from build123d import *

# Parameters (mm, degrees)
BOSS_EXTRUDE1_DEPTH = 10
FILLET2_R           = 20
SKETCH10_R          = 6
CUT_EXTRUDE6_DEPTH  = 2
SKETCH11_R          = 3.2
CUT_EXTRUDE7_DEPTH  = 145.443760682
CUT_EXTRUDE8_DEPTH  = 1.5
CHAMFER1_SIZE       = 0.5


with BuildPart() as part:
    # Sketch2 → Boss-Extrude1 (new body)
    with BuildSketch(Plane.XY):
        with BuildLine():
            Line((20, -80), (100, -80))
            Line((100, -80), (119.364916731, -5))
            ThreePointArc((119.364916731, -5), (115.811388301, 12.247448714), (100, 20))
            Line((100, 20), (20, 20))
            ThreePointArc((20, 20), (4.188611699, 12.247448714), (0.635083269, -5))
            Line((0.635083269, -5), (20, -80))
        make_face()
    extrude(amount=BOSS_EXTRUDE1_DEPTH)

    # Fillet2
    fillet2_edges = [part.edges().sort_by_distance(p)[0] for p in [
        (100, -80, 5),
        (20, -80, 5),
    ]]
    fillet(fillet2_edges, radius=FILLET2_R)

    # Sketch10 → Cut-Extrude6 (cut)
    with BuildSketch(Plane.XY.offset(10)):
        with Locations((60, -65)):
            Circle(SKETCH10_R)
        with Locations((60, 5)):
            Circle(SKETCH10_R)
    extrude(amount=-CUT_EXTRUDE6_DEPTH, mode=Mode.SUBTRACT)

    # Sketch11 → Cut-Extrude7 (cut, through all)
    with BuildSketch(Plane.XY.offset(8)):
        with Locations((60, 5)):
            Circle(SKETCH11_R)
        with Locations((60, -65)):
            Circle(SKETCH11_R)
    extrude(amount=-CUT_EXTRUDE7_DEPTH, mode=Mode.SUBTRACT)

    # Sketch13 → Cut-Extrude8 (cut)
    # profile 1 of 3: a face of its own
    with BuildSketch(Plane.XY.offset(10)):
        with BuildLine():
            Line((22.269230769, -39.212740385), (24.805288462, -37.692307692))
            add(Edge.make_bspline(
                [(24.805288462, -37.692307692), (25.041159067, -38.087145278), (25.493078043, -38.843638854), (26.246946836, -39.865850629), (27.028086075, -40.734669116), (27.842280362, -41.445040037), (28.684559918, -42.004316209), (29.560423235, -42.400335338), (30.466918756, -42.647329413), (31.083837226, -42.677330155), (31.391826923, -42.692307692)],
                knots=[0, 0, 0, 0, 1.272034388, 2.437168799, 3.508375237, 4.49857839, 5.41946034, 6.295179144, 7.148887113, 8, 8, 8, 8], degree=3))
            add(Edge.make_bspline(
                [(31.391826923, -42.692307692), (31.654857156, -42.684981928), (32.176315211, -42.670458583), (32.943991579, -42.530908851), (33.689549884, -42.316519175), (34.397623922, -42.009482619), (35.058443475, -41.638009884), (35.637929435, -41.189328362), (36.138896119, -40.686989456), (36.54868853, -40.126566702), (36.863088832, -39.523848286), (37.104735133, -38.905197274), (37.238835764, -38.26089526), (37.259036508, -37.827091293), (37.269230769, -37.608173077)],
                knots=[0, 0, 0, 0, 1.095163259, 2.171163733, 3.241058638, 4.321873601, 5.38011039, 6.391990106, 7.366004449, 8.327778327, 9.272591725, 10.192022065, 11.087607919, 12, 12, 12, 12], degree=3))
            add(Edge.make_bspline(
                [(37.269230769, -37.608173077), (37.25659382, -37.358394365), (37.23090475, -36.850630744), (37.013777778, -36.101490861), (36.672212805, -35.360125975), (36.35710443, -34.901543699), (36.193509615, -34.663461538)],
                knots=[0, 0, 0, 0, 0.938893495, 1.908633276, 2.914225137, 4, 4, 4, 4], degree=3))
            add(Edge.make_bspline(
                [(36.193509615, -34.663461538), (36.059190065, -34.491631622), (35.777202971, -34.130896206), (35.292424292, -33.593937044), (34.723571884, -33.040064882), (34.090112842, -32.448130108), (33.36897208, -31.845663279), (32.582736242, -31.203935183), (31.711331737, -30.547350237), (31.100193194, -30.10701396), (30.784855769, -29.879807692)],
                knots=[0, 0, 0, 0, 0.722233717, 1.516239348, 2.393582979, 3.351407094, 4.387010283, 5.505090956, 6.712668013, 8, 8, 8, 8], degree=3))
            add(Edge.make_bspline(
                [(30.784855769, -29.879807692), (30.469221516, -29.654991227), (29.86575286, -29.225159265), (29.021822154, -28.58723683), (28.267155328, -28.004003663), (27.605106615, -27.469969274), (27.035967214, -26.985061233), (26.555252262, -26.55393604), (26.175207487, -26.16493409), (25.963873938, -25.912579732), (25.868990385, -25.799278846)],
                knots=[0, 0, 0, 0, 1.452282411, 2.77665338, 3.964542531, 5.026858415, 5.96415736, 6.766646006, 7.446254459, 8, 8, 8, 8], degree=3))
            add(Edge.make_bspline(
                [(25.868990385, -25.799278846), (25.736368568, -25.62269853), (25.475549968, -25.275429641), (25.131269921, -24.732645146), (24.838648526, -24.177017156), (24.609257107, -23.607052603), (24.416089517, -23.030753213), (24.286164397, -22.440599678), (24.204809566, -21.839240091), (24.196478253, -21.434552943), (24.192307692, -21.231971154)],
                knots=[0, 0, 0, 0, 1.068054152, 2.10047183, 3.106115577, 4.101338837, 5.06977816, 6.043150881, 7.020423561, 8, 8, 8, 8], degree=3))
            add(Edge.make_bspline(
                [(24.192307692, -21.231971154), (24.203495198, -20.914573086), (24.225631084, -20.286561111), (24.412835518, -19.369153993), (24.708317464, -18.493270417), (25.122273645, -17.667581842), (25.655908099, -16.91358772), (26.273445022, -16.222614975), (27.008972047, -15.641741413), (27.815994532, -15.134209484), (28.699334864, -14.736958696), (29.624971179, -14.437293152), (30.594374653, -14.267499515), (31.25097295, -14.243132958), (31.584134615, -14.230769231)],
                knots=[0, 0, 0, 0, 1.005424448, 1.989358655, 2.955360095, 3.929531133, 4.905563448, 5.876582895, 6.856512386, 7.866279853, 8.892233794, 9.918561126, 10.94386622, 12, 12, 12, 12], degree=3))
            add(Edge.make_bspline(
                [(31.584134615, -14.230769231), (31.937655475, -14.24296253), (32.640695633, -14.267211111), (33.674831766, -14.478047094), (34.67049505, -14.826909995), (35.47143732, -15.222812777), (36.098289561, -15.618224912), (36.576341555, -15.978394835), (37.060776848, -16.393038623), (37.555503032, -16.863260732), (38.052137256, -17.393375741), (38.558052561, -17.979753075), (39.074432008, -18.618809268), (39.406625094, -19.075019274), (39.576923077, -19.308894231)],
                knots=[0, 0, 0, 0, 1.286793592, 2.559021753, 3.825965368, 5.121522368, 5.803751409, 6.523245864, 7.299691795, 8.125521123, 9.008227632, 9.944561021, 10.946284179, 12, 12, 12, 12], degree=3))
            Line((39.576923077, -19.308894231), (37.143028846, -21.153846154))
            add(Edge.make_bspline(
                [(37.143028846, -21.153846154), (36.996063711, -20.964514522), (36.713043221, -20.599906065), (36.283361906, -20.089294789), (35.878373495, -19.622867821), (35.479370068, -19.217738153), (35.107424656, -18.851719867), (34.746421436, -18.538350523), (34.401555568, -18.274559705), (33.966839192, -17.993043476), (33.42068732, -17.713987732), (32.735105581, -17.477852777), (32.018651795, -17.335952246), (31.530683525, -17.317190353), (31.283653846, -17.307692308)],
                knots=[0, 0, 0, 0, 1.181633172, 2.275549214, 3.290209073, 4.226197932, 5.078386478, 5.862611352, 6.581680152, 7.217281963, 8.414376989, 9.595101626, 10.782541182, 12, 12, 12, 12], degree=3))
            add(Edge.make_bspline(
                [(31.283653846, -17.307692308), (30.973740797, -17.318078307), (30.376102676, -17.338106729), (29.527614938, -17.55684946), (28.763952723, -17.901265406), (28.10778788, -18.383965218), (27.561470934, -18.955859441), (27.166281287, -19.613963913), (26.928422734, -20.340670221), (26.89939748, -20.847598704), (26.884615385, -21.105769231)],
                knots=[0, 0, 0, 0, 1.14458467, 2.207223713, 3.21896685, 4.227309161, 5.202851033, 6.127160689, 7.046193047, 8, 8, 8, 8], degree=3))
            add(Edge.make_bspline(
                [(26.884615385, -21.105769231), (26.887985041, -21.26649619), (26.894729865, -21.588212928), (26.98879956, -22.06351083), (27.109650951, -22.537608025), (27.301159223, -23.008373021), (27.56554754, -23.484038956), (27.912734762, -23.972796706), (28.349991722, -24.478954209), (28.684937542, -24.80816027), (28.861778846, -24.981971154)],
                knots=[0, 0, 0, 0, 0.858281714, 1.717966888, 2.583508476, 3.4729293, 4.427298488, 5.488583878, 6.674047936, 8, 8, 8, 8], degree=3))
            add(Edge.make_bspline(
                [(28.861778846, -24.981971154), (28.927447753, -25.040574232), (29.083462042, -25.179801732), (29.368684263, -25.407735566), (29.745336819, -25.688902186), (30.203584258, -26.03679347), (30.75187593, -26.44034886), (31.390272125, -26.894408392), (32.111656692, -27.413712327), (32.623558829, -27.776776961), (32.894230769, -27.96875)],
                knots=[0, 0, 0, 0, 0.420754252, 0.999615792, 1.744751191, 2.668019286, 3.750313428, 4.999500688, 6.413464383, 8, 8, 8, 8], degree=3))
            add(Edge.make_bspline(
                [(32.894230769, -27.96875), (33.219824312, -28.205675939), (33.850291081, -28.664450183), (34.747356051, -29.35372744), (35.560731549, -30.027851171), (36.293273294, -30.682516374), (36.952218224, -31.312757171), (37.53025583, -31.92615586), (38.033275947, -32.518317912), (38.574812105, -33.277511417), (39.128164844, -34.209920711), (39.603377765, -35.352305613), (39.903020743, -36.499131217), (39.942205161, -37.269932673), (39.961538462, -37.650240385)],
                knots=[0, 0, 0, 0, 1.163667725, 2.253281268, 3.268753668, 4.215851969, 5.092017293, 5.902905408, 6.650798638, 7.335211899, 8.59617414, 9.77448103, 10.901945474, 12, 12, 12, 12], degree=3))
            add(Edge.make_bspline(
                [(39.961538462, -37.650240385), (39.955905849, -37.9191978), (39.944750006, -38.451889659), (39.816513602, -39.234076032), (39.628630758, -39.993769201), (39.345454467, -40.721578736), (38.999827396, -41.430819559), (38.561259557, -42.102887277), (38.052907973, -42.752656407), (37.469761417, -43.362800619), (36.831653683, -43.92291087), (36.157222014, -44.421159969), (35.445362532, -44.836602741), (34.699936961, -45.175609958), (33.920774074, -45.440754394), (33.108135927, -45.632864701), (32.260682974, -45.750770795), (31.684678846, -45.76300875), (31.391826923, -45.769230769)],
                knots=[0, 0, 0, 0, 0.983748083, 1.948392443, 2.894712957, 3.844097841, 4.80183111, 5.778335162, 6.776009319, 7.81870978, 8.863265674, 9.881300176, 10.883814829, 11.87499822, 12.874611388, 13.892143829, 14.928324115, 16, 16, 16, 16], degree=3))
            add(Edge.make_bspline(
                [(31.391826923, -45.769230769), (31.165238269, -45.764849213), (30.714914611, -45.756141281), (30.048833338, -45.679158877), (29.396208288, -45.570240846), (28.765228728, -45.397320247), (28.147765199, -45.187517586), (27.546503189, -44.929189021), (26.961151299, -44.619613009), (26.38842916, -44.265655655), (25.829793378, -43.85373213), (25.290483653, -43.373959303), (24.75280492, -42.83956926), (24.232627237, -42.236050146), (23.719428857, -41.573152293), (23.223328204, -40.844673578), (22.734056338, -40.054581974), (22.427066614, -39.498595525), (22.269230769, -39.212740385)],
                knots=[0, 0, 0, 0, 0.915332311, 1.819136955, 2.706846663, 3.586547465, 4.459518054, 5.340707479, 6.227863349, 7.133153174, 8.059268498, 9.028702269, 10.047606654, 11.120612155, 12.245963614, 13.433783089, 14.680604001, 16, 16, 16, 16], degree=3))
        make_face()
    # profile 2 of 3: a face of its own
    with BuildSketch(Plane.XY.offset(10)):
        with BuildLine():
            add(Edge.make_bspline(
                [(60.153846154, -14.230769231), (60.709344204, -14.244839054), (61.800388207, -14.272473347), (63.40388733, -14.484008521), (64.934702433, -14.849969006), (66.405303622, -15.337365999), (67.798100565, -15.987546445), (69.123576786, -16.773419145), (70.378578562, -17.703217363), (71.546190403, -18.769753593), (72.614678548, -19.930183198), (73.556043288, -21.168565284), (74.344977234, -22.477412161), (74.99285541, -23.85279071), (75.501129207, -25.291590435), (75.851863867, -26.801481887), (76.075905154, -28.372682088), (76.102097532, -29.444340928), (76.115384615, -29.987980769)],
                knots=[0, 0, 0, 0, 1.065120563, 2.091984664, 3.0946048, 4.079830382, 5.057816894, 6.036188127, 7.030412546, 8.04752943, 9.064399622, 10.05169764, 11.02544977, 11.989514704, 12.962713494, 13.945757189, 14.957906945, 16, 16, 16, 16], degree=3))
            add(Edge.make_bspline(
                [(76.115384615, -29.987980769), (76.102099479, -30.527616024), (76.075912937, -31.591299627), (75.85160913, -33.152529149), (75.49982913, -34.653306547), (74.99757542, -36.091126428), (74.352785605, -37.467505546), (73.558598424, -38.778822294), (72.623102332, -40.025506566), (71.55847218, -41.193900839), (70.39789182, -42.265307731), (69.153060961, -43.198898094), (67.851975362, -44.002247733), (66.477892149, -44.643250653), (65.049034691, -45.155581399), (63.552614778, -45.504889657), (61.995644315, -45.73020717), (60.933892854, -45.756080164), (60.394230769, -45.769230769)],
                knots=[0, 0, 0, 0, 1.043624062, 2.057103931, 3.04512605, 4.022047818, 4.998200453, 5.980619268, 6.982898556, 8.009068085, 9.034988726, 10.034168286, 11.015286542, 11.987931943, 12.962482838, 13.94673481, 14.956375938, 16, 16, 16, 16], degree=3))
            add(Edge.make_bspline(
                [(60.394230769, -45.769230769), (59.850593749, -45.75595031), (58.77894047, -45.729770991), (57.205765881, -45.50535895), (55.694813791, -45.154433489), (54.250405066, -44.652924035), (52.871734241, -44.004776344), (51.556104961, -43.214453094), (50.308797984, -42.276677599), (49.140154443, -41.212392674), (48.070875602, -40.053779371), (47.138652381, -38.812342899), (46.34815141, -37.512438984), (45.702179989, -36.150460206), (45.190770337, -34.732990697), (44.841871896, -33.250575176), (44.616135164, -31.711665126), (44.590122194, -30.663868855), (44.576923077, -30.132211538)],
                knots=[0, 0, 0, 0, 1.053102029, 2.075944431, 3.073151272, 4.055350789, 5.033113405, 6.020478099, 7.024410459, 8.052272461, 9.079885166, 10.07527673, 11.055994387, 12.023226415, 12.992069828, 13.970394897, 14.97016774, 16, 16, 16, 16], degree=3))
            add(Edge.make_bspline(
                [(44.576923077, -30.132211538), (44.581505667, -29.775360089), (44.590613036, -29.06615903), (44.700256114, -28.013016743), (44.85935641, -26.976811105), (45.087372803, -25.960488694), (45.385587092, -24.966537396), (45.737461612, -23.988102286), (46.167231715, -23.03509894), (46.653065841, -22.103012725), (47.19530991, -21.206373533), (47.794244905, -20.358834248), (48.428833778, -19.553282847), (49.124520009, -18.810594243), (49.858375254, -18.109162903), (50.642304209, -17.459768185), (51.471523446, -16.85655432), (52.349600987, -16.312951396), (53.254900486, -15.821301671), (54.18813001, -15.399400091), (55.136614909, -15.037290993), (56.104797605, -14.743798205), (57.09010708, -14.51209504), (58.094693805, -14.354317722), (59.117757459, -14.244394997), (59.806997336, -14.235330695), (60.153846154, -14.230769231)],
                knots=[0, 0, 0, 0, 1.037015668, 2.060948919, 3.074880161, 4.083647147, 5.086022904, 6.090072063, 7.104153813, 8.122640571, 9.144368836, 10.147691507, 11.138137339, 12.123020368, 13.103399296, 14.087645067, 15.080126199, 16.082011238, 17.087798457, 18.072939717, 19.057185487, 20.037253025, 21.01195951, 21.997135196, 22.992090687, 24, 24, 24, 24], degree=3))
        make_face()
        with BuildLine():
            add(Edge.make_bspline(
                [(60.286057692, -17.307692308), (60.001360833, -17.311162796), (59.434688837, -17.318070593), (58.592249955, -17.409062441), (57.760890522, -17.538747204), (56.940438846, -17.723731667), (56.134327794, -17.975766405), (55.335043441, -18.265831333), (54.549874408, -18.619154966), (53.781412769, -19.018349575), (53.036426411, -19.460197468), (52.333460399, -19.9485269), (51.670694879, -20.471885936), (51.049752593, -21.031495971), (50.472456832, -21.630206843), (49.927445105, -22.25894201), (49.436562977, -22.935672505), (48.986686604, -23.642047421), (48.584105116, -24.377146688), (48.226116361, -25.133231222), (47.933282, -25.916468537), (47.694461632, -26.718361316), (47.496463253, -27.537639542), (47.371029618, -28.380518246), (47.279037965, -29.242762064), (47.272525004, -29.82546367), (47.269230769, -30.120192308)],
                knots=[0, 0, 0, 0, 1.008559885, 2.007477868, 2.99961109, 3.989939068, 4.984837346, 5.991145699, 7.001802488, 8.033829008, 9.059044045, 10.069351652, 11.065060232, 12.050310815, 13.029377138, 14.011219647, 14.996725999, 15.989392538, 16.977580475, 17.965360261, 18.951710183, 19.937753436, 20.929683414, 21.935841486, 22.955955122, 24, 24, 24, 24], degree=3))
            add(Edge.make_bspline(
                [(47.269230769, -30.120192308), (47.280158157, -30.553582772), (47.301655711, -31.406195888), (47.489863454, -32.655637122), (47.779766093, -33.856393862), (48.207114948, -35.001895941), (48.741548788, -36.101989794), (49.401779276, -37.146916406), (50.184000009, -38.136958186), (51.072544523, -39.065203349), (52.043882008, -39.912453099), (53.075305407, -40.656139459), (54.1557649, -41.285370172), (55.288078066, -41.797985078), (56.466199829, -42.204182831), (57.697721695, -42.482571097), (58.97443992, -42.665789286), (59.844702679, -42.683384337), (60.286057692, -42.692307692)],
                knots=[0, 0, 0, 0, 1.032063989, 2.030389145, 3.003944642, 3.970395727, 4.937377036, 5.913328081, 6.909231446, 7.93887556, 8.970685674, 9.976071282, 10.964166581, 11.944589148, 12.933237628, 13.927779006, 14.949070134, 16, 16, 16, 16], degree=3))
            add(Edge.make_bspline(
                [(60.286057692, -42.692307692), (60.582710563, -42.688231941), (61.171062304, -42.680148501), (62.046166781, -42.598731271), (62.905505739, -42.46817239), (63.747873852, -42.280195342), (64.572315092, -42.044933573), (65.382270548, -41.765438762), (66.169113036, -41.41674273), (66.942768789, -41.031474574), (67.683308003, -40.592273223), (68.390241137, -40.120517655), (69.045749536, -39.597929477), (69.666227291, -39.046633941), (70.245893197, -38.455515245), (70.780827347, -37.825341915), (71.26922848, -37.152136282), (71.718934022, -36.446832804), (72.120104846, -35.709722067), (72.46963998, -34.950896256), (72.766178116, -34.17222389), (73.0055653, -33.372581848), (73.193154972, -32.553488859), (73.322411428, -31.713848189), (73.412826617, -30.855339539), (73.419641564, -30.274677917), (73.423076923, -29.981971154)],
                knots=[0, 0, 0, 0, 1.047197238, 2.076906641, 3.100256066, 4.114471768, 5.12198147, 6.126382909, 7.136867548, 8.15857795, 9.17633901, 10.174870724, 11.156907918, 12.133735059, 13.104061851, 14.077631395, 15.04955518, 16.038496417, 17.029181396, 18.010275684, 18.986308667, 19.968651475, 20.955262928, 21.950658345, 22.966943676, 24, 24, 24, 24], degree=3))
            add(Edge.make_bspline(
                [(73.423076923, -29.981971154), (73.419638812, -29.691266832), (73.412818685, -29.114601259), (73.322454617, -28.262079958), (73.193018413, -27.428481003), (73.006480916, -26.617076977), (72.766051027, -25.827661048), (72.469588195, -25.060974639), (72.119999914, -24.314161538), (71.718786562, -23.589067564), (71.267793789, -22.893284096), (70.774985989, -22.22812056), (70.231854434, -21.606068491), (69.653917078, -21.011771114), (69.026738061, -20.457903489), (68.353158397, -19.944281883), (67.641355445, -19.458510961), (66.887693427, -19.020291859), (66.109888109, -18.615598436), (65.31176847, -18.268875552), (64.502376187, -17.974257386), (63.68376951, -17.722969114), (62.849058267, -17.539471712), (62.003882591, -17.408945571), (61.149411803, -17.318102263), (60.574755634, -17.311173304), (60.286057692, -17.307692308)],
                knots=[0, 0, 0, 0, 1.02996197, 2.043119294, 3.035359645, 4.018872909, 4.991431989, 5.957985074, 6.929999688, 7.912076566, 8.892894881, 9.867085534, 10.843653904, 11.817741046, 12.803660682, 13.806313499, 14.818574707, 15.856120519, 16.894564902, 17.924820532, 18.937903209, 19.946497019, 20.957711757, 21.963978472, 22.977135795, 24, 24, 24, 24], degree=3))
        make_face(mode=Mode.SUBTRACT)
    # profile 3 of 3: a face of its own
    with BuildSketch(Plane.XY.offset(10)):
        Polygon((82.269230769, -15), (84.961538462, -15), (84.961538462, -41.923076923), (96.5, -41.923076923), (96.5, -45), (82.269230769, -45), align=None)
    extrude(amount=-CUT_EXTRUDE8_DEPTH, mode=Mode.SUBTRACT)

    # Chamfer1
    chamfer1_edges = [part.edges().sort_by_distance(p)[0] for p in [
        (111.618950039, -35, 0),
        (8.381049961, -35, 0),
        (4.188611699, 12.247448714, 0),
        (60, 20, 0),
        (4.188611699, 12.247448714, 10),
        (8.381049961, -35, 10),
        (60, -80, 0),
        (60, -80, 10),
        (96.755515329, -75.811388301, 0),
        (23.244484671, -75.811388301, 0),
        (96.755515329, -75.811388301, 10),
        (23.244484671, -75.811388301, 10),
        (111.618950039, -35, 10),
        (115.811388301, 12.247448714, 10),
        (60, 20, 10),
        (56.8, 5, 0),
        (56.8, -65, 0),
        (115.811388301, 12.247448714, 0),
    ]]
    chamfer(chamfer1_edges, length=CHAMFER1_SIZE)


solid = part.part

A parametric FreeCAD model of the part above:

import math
import FreeCAD as App
import Part
import Sketcher


def edges_at(feature, points):
    """Names of the edges that pass closest to the given points."""
    edges = feature.Shape.Edges
    near = lambda p: min(range(len(edges)), key=lambda i: edges[i].distToShape(Part.Vertex(*p))[0])
    return sorted({f"Edge{near(p) + 1}" for p in points})


def add_polygon(sketch, points):
    """Adds a closed chain of lines whose ends are joined by coincident constraints."""
    first, n = sketch.GeometryCount, len(points)
    for a, b in zip(points, points[1:] + points[:1]):
        sketch.addGeometry(Part.LineSegment(App.Vector(*a, 0), App.Vector(*b, 0)), False)
    for i in range(n):
        sketch.addConstraint(Sketcher.Constraint("Coincident", first + i, 2, first + (i + 1) % n, 1))

doc = App.newDocument("Part")
body = doc.addObject("PartDesign::Body", "Body")

# Sketch on XY plane
sketch1 = body.newObject("Sketcher::SketchObject", "Sketch")
sketch1.AttachmentSupport = (doc.getObject("XY_Plane"), [""])
sketch1.MapMode = "FlatFace"
sketch1.addGeometry(Part.LineSegment(App.Vector(20, -80, 0), App.Vector(100, -80, 0)), False)
sketch1.addGeometry(Part.LineSegment(App.Vector(100, -80, 0), App.Vector(119, -5, 0)), False)
sketch1.addGeometry(Part.ArcOfCircle(Part.Circle(App.Vector(100, 0, 0), App.Vector(0, 0, 1), 20), math.radians(-14), math.radians(90)), False)
sketch1.addGeometry(Part.LineSegment(App.Vector(100, 20, 0), App.Vector(20, 20, 0)), False)
sketch1.addGeometry(Part.ArcOfCircle(Part.Circle(App.Vector(20, 0, 0), App.Vector(0, 0, 1), 20), math.radians(90), math.radians(194)), False)
sketch1.addGeometry(Part.LineSegment(App.Vector(1, -5, 0), App.Vector(20, -80, 0)), False)
sketch1.addConstraint(Sketcher.Constraint("Coincident", 0, 2, 1, 1))
sketch1.addConstraint(Sketcher.Constraint("Tangent", 1, 2, 2, 1))
sketch1.addConstraint(Sketcher.Constraint("Tangent", 2, 2, 3, 1))
sketch1.addConstraint(Sketcher.Constraint("Tangent", 3, 2, 4, 1))
sketch1.addConstraint(Sketcher.Constraint("Tangent", 4, 2, 5, 1))
sketch1.addConstraint(Sketcher.Constraint("Coincident", 5, 2, 0, 1))
sketch1.addConstraint(Sketcher.Constraint("Horizontal", 0))
sketch1.addConstraint(Sketcher.Constraint("Horizontal", 3))
sketch1.addConstraint(Sketcher.Constraint("Equal", 2, 4))
sketch1.addConstraint(Sketcher.Constraint("PointOnObject", 2, 3, -1))
sketch1.addConstraint(Sketcher.Constraint("Horizontal", 1, 2, 4, 2))
sketch1.addConstraint(Sketcher.Constraint("Vertical", 2, 3, 0, 2))
sketch1.addConstraint(Sketcher.Constraint("Radius", 2, 20.0))
sketch1.addConstraint(Sketcher.Constraint("DistanceX", 0, 1, 0, 2, 80.0))
sketch1.addConstraint(Sketcher.Constraint("DistanceX", -1, 1, 2, 3, 100.0))
sketch1.addConstraint(Sketcher.Constraint("DistanceY", 0, 2, -1, 1, 80.0))
pad1 = body.newObject("PartDesign::Pad", "Pad")
pad1.Profile = sketch1
pad1.Length = 10
doc.recompute()

fillet = body.newObject("PartDesign::Fillet", "Fillet")
fillet.Base = (pad1, edges_at(pad1, [(100, -80, 5), (20, -80, 5)]))
fillet.Radius = 20

# Sketch on XY plane
sketch2 = body.newObject("Sketcher::SketchObject", "Sketch001")
sketch2.AttachmentSupport = (doc.getObject("XY_Plane"), [""])
sketch2.MapMode = "FlatFace"
sketch2.AttachmentOffset = App.Placement(App.Vector(0, 0, 10), App.Rotation())
sketch2.addGeometry(Part.Circle(App.Vector(60, -65, 0), App.Vector(0, 0, 1), 6), False)
sketch2.addGeometry(Part.Circle(App.Vector(60, 5, 0), App.Vector(0, 0, 1), 6), False)
sketch2.addConstraint(Sketcher.Constraint("Equal", 0, 1))
sketch2.addConstraint(Sketcher.Constraint("Vertical", 0, 3, 1, 3))
sketch2.addConstraint(Sketcher.Constraint("Diameter", 0, 12.0))
sketch2.addConstraint(Sketcher.Constraint("DistanceX", -1, 1, 0, 3, 60.0))
sketch2.addConstraint(Sketcher.Constraint("DistanceY", 0, 3, -1, 1, 65.0))
sketch2.addConstraint(Sketcher.Constraint("DistanceY", -1, 1, 1, 3, 5.0))
pocket1 = body.newObject("PartDesign::Pocket", "Pocket")
pocket1.Profile = sketch2
pocket1.Length = 2

# Sketch on XY plane
sketch3 = body.newObject("Sketcher::SketchObject", "Sketch002")
sketch3.AttachmentSupport = (doc.getObject("XY_Plane"), [""])
sketch3.MapMode = "FlatFace"
sketch3.AttachmentOffset = App.Placement(App.Vector(0, 0, 8), App.Rotation())
sketch3.addGeometry(Part.Circle(App.Vector(60, 5, 0), App.Vector(0, 0, 1), 3.2), False)
sketch3.addGeometry(Part.Circle(App.Vector(60, -65, 0), App.Vector(0, 0, 1), 3.2), False)
sketch3.addConstraint(Sketcher.Constraint("Equal", 0, 1))
sketch3.addConstraint(Sketcher.Constraint("Vertical", 0, 3, 1, 3))
sketch3.addConstraint(Sketcher.Constraint("Diameter", 0, 6.4))
sketch3.addConstraint(Sketcher.Constraint("DistanceX", -1, 1, 0, 3, 60.0))
sketch3.addConstraint(Sketcher.Constraint("DistanceY", -1, 1, 0, 3, 5.0))
sketch3.addConstraint(Sketcher.Constraint("DistanceY", 1, 3, -1, 1, 65.0))
pocket2 = body.newObject("PartDesign::Pocket", "Pocket001")
pocket2.Profile = sketch3
pocket2.Type = "ThroughAll"

# Sketch on XY plane
sketch4 = body.newObject("Sketcher::SketchObject", "Sketch003")
sketch4.AttachmentSupport = (doc.getObject("XY_Plane"), [""])
sketch4.MapMode = "FlatFace"
sketch4.AttachmentOffset = App.Placement(App.Vector(0, 0, 10), App.Rotation())
sketch4.addGeometry(Part.LineSegment(App.Vector(24.805288, -37.692308, 0), App.Vector(22.269231, -39.21274, 0)), False)  # 0
sketch4.addGeometry(Part.BSplineCurve([App.Vector(31.391827, -45.769231, 0), App.Vector(31.165238, -45.764849, 0), App.Vector(30.714915, -45.756141, 0), App.Vector(30.048833, -45.679159, 0), App.Vector(29.396208, -45.570241, 0), App.Vector(28.765229, -45.39732, 0), App.Vector(28.147765, -45.187518, 0), App.Vector(27.546503, -44.929189, 0), App.Vector(26.961151, -44.619613, 0), App.Vector(26.388429, -44.265656, 0), App.Vector(25.829793, -43.853732, 0), App.Vector(25.290484, -43.373959, 0), App.Vector(24.752805, -42.839569, 0), App.Vector(24.232627, -42.23605, 0), App.Vector(23.719429, -41.573152, 0), App.Vector(23.223328, -40.844674, 0), App.Vector(22.734056, -40.054582, 0), App.Vector(22.427067, -39.498596, 0), App.Vector(22.269231, -39.21274, 0)], [4, 1, 1, 1, 1, 1, 1, 1, 1, 1, 1, 1, 1, 1, 1, 1, 4], [0, 0.915332311, 1.819136955, 2.706846663, 3.586547465, 4.459518054, 5.340707479, 6.227863349, 7.133153174, 8.059268498, 9.028702269, 10.047606654, 11.120612155, 12.245963614, 13.433783089, 14.680604001, 16], False, 3, [1, 1, 1, 1, 1, 1, 1, 1, 1, 1, 1, 1, 1, 1, 1, 1, 1, 1, 1], False), False)  # 1
sketch4.addGeometry(Part.BSplineCurve([App.Vector(39.961538, -37.65024, 0), App.Vector(39.955906, -37.919198, 0), App.Vector(39.94475, -38.45189, 0), App.Vector(39.816514, -39.234076, 0), App.Vector(39.628631, -39.993769, 0), App.Vector(39.345454, -40.721579, 0), App.Vector(38.999827, -41.43082, 0), App.Vector(38.56126, -42.102887, 0), App.Vector(38.052908, -42.752656, 0), App.Vector(37.469761, -43.362801, 0), App.Vector(36.831654, -43.922911, 0), App.Vector(36.157222, -44.42116, 0), App.Vector(35.445363, -44.836603, 0), App.Vector(34.699937, -45.17561, 0), App.Vector(33.920774, -45.440754, 0), App.Vector(33.108136, -45.632865, 0), App.Vector(32.260683, -45.750771, 0), App.Vector(31.684679, -45.763009, 0), App.Vector(31.391827, -45.769231, 0)], [4, 1, 1, 1, 1, 1, 1, 1, 1, 1, 1, 1, 1, 1, 1, 1, 4], [0, 0.983748083, 1.948392443, 2.894712957, 3.844097841, 4.80183111, 5.778335162, 6.776009319, 7.81870978, 8.863265674, 9.881300176, 10.883814829, 11.87499822, 12.874611388, 13.892143829, 14.928324115, 16], False, 3, [1, 1, 1, 1, 1, 1, 1, 1, 1, 1, 1, 1, 1, 1, 1, 1, 1, 1, 1], False), False)  # 2
sketch4.addGeometry(Part.BSplineCurve([App.Vector(32.894231, -27.96875, 0), App.Vector(33.219824, -28.205676, 0), App.Vector(33.850291, -28.66445, 0), App.Vector(34.747356, -29.353727, 0), App.Vector(35.560732, -30.027851, 0), App.Vector(36.293273, -30.682516, 0), App.Vector(36.952218, -31.312757, 0), App.Vector(37.530256, -31.926156, 0), App.Vector(38.033276, -32.518318, 0), App.Vector(38.574812, -33.277511, 0), App.Vector(39.128165, -34.209921, 0), App.Vector(39.603378, -35.352306, 0), App.Vector(39.903021, -36.499131, 0), App.Vector(39.942205, -37.269933, 0), App.Vector(39.961538, -37.65024, 0)], [4, 1, 1, 1, 1, 1, 1, 1, 1, 1, 1, 1, 4], [0, 1.163667725, 2.253281268, 3.268753668, 4.215851969, 5.092017293, 5.902905408, 6.650798638, 7.335211899, 8.59617414, 9.77448103, 10.901945474, 12], False, 3, [1, 1, 1, 1, 1, 1, 1, 1, 1, 1, 1, 1, 1, 1, 1], False), False)  # 3
sketch4.addGeometry(Part.BSplineCurve([App.Vector(28.861779, -24.981971, 0), App.Vector(28.927448, -25.040574, 0), App.Vector(29.083462, -25.179802, 0), App.Vector(29.368684, -25.407736, 0), App.Vector(29.745337, -25.688902, 0), App.Vector(30.203584, -26.036793, 0), App.Vector(30.751876, -26.440349, 0), App.Vector(31.390272, -26.894408, 0), App.Vector(32.111657, -27.413712, 0), App.Vector(32.623559, -27.776777, 0), App.Vector(32.894231, -27.96875, 0)], [4, 1, 1, 1, 1, 1, 1, 1, 4], [0, 0.420754252, 0.999615792, 1.744751191, 2.668019286, 3.750313428, 4.999500688, 6.413464383, 8], False, 3, [1, 1, 1, 1, 1, 1, 1, 1, 1, 1, 1], False), False)  # 4
sketch4.addGeometry(Part.BSplineCurve([App.Vector(26.884615, -21.105769, 0), App.Vector(26.887985, -21.266496, 0), App.Vector(26.89473, -21.588213, 0), App.Vector(26.9888, -22.063511, 0), App.Vector(27.109651, -22.537608, 0), App.Vector(27.301159, -23.008373, 0), App.Vector(27.565548, -23.484039, 0), App.Vector(27.912735, -23.972797, 0), App.Vector(28.349992, -24.478954, 0), App.Vector(28.684938, -24.80816, 0), App.Vector(28.861779, -24.981971, 0)], [4, 1, 1, 1, 1, 1, 1, 1, 4], [0, 0.858281714, 1.717966888, 2.583508476, 3.4729293, 4.427298488, 5.488583878, 6.674047936, 8], False, 3, [1, 1, 1, 1, 1, 1, 1, 1, 1, 1, 1], False), False)  # 5
sketch4.addGeometry(Part.BSplineCurve([App.Vector(31.283654, -17.307692, 0), App.Vector(30.973741, -17.318078, 0), App.Vector(30.376103, -17.338107, 0), App.Vector(29.527615, -17.556849, 0), App.Vector(28.763953, -17.901265, 0), App.Vector(28.107788, -18.383965, 0), App.Vector(27.561471, -18.955859, 0), App.Vector(27.166281, -19.613964, 0), App.Vector(26.928423, -20.34067, 0), App.Vector(26.899397, -20.847599, 0), App.Vector(26.884615, -21.105769, 0)], [4, 1, 1, 1, 1, 1, 1, 1, 4], [0, 1.14458467, 2.207223713, 3.21896685, 4.227309161, 5.202851033, 6.127160689, 7.046193047, 8], False, 3, [1, 1, 1, 1, 1, 1, 1, 1, 1, 1, 1], False), False)  # 6
sketch4.addGeometry(Part.BSplineCurve([App.Vector(37.143029, -21.153846, 0), App.Vector(36.996064, -20.964515, 0), App.Vector(36.713043, -20.599906, 0), App.Vector(36.283362, -20.089295, 0), App.Vector(35.878373, -19.622868, 0), App.Vector(35.47937, -19.217738, 0), App.Vector(35.107425, -18.85172, 0), App.Vector(34.746421, -18.538351, 0), App.Vector(34.401556, -18.27456, 0), App.Vector(33.966839, -17.993043, 0), App.Vector(33.420687, -17.713988, 0), App.Vector(32.735106, -17.477853, 0), App.Vector(32.018652, -17.335952, 0), App.Vector(31.530684, -17.31719, 0), App.Vector(31.283654, -17.307692, 0)], [4, 1, 1, 1, 1, 1, 1, 1, 1, 1, 1, 1, 4], [0, 1.181633172, 2.275549214, 3.290209073, 4.226197932, 5.078386478, 5.862611352, 6.581680152, 7.217281963, 8.414376989, 9.595101626, 10.782541182, 12], False, 3, [1, 1, 1, 1, 1, 1, 1, 1, 1, 1, 1, 1, 1, 1, 1], False), False)  # 7
sketch4.addGeometry(Part.LineSegment(App.Vector(37.143029, -21.153846, 0), App.Vector(39.576923, -19.308894, 0)), False)  # 8
sketch4.addGeometry(Part.BSplineCurve([App.Vector(31.584135, -14.230769, 0), App.Vector(31.937655, -14.242963, 0), App.Vector(32.640696, -14.267211, 0), App.Vector(33.674832, -14.478047, 0), App.Vector(34.670495, -14.82691, 0), App.Vector(35.471437, -15.222813, 0), App.Vector(36.09829, -15.618225, 0), App.Vector(36.576342, -15.978395, 0), App.Vector(37.060777, -16.393039, 0), App.Vector(37.555503, -16.863261, 0), App.Vector(38.052137, -17.393376, 0), App.Vector(38.558053, -17.979753, 0), App.Vector(39.074432, -18.618809, 0), App.Vector(39.406625, -19.075019, 0), App.Vector(39.576923, -19.308894, 0)], [4, 1, 1, 1, 1, 1, 1, 1, 1, 1, 1, 1, 4], [0, 1.286793592, 2.559021753, 3.825965368, 5.121522368, 5.803751409, 6.523245864, 7.299691795, 8.125521123, 9.008227632, 9.944561021, 10.946284179, 12], False, 3, [1, 1, 1, 1, 1, 1, 1, 1, 1, 1, 1, 1, 1, 1, 1], False), False)  # 9
sketch4.addGeometry(Part.BSplineCurve([App.Vector(24.192308, -21.231971, 0), App.Vector(24.203495, -20.914573, 0), App.Vector(24.225631, -20.286561, 0), App.Vector(24.412836, -19.369154, 0), App.Vector(24.708317, -18.49327, 0), App.Vector(25.122274, -17.667582, 0), App.Vector(25.655908, -16.913588, 0), App.Vector(26.273445, -16.222615, 0), App.Vector(27.008972, -15.641741, 0), App.Vector(27.815995, -15.134209, 0), App.Vector(28.699335, -14.736959, 0), App.Vector(29.624971, -14.437293, 0), App.Vector(30.594375, -14.2675, 0), App.Vector(31.250973, -14.243133, 0), App.Vector(31.584135, -14.230769, 0)], [4, 1, 1, 1, 1, 1, 1, 1, 1, 1, 1, 1, 4], [0, 1.005424448, 1.989358655, 2.955360095, 3.929531133, 4.905563448, 5.876582895, 6.856512386, 7.866279853, 8.892233794, 9.918561126, 10.94386622, 12], False, 3, [1, 1, 1, 1, 1, 1, 1, 1, 1, 1, 1, 1, 1, 1, 1], False), False)  # 10
sketch4.addGeometry(Part.BSplineCurve([App.Vector(25.86899, -25.799279, 0), App.Vector(25.736369, -25.622699, 0), App.Vector(25.47555, -25.27543, 0), App.Vector(25.13127, -24.732645, 0), App.Vector(24.838649, -24.177017, 0), App.Vector(24.609257, -23.607053, 0), App.Vector(24.41609, -23.030753, 0), App.Vector(24.286164, -22.4406, 0), App.Vector(24.20481, -21.83924, 0), App.Vector(24.196478, -21.434553, 0), App.Vector(24.192308, -21.231971, 0)], [4, 1, 1, 1, 1, 1, 1, 1, 4], [0, 1.068054152, 2.10047183, 3.106115577, 4.101338837, 5.06977816, 6.043150881, 7.020423561, 8], False, 3, [1, 1, 1, 1, 1, 1, 1, 1, 1, 1, 1], False), False)  # 11
sketch4.addGeometry(Part.BSplineCurve([App.Vector(30.784856, -29.879808, 0), App.Vector(30.469222, -29.654991, 0), App.Vector(29.865753, -29.225159, 0), App.Vector(29.021822, -28.587237, 0), App.Vector(28.267155, -28.004004, 0), App.Vector(27.605107, -27.469969, 0), App.Vector(27.035967, -26.985061, 0), App.Vector(26.555252, -26.553936, 0), App.Vector(26.175207, -26.164934, 0), App.Vector(25.963874, -25.91258, 0), App.Vector(25.86899, -25.799279, 0)], [4, 1, 1, 1, 1, 1, 1, 1, 4], [0, 1.452282411, 2.77665338, 3.964542531, 5.026858415, 5.96415736, 6.766646006, 7.446254459, 8], False, 3, [1, 1, 1, 1, 1, 1, 1, 1, 1, 1, 1], False), False)  # 12
sketch4.addGeometry(Part.BSplineCurve([App.Vector(36.19351, -34.663462, 0), App.Vector(36.05919, -34.491632, 0), App.Vector(35.777203, -34.130896, 0), App.Vector(35.292424, -33.593937, 0), App.Vector(34.723572, -33.040065, 0), App.Vector(34.090113, -32.44813, 0), App.Vector(33.368972, -31.845663, 0), App.Vector(32.582736, -31.203935, 0), App.Vector(31.711332, -30.54735, 0), App.Vector(31.100193, -30.107014, 0), App.Vector(30.784856, -29.879808, 0)], [4, 1, 1, 1, 1, 1, 1, 1, 4], [0, 0.722233717, 1.516239348, 2.393582979, 3.351407094, 4.387010283, 5.505090956, 6.712668013, 8], False, 3, [1, 1, 1, 1, 1, 1, 1, 1, 1, 1, 1], False), False)  # 13
sketch4.addGeometry(Part.BSplineCurve([App.Vector(37.269231, -37.608173, 0), App.Vector(37.256594, -37.358394, 0), App.Vector(37.230905, -36.850631, 0), App.Vector(37.013778, -36.101491, 0), App.Vector(36.672213, -35.360126, 0), App.Vector(36.357104, -34.901544, 0), App.Vector(36.19351, -34.663462, 0)], [4, 1, 1, 1, 4], [0, 0.938893495, 1.908633276, 2.914225137, 4], False, 3, [1, 1, 1, 1, 1, 1, 1], False), False)  # 14
sketch4.addGeometry(Part.BSplineCurve([App.Vector(31.391827, -42.692308, 0), App.Vector(31.654857, -42.684982, 0), App.Vector(32.176315, -42.670459, 0), App.Vector(32.943992, -42.530909, 0), App.Vector(33.68955, -42.316519, 0), App.Vector(34.397624, -42.009483, 0), App.Vector(35.058443, -41.63801, 0), App.Vector(35.637929, -41.189328, 0), App.Vector(36.138896, -40.686989, 0), App.Vector(36.548689, -40.126567, 0), App.Vector(36.863089, -39.523848, 0), App.Vector(37.104735, -38.905197, 0), App.Vector(37.238836, -38.260895, 0), App.Vector(37.259037, -37.827091, 0), App.Vector(37.269231, -37.608173, 0)], [4, 1, 1, 1, 1, 1, 1, 1, 1, 1, 1, 1, 4], [0, 1.095163259, 2.171163733, 3.241058638, 4.321873601, 5.38011039, 6.391990106, 7.366004449, 8.327778327, 9.272591725, 10.192022065, 11.087607919, 12], False, 3, [1, 1, 1, 1, 1, 1, 1, 1, 1, 1, 1, 1, 1, 1, 1], False), False)  # 15
sketch4.addGeometry(Part.BSplineCurve([App.Vector(24.805288, -37.692308, 0), App.Vector(25.041159, -38.087145, 0), App.Vector(25.493078, -38.843639, 0), App.Vector(26.246947, -39.865851, 0), App.Vector(27.028086, -40.734669, 0), App.Vector(27.84228, -41.44504, 0), App.Vector(28.68456, -42.004316, 0), App.Vector(29.560423, -42.400335, 0), App.Vector(30.466919, -42.647329, 0), App.Vector(31.083837, -42.67733, 0), App.Vector(31.391827, -42.692308, 0)], [4, 1, 1, 1, 1, 1, 1, 1, 4], [0, 1.272034388, 2.437168799, 3.508375237, 4.49857839, 5.41946034, 6.295179144, 7.148887113, 8], False, 3, [1, 1, 1, 1, 1, 1, 1, 1, 1, 1, 1], False), False)  # 16
sketch4.addGeometry(Part.BSplineCurve([App.Vector(60.153846, -14.230769, 0), App.Vector(60.709344, -14.244839, 0), App.Vector(61.800388, -14.272473, 0), App.Vector(63.403887, -14.484009, 0), App.Vector(64.934702, -14.849969, 0), App.Vector(66.405304, -15.337366, 0), App.Vector(67.798101, -15.987546, 0), App.Vector(69.123577, -16.773419, 0), App.Vector(70.378579, -17.703217, 0), App.Vector(71.54619, -18.769754, 0), App.Vector(72.614679, -19.930183, 0), App.Vector(73.556043, -21.168565, 0), App.Vector(74.344977, -22.477412, 0), App.Vector(74.992855, -23.852791, 0), App.Vector(75.501129, -25.29159, 0), App.Vector(75.851864, -26.801482, 0), App.Vector(76.075905, -28.372682, 0), App.Vector(76.102098, -29.444341, 0), App.Vector(76.115385, -29.987981, 0)], [4, 1, 1, 1, 1, 1, 1, 1, 1, 1, 1, 1, 1, 1, 1, 1, 4], [0, 1.065120563, 2.091984664, 3.0946048, 4.079830382, 5.057816894, 6.036188127, 7.030412546, 8.04752943, 9.064399622, 10.05169764, 11.02544977, 11.989514704, 12.962713494, 13.945757189, 14.957906945, 16], False, 3, [1, 1, 1, 1, 1, 1, 1, 1, 1, 1, 1, 1, 1, 1, 1, 1, 1, 1, 1], False), False)  # 17
sketch4.addGeometry(Part.BSplineCurve([App.Vector(44.576923, -30.132212, 0), App.Vector(44.581506, -29.77536, 0), App.Vector(44.590613, -29.066159, 0), App.Vector(44.700256, -28.013017, 0), App.Vector(44.859356, -26.976811, 0), App.Vector(45.087373, -25.960489, 0), App.Vector(45.385587, -24.966537, 0), App.Vector(45.737462, -23.988102, 0), App.Vector(46.167232, -23.035099, 0), App.Vector(46.653066, -22.103013, 0), App.Vector(47.19531, -21.206374, 0), App.Vector(47.794245, -20.358834, 0), App.Vector(48.428834, -19.553283, 0), App.Vector(49.12452, -18.810594, 0), App.Vector(49.858375, -18.109163, 0), App.Vector(50.642304, -17.459768, 0), App.Vector(51.471523, -16.856554, 0), App.Vector(52.349601, -16.312951, 0), App.Vector(53.2549, -15.821302, 0), App.Vector(54.18813, -15.3994, 0), App.Vector(55.136615, -15.037291, 0), App.Vector(56.104798, -14.743798, 0), App.Vector(57.090107, -14.512095, 0), App.Vector(58.094694, -14.354318, 0), App.Vector(59.117757, -14.244395, 0), App.Vector(59.806997, -14.235331, 0), App.Vector(60.153846, -14.230769, 0)], [4, 1, 1, 1, 1, 1, 1, 1, 1, 1, 1, 1, 1, 1, 1, 1, 1, 1, 1, 1, 1, 1, 1, 1, 4], [0, 1.037015668, 2.060948919, 3.074880161, 4.083647147, 5.086022904, 6.090072063, 7.104153813, 8.122640571, 9.144368836, 10.147691507, 11.138137339, 12.123020368, 13.103399296, 14.087645067, 15.080126199, 16.082011238, 17.087798457, 18.072939717, 19.057185487, 20.037253025, 21.01195951, 21.997135196, 22.992090687, 24], False, 3, [1, 1, 1, 1, 1, 1, 1, 1, 1, 1, 1, 1, 1, 1, 1, 1, 1, 1, 1, 1, 1, 1, 1, 1, 1, 1, 1], False), False)  # 18
sketch4.addGeometry(Part.BSplineCurve([App.Vector(60.394231, -45.769231, 0), App.Vector(59.850594, -45.75595, 0), App.Vector(58.77894, -45.729771, 0), App.Vector(57.205766, -45.505359, 0), App.Vector(55.694814, -45.154433, 0), App.Vector(54.250405, -44.652924, 0), App.Vector(52.871734, -44.004776, 0), App.Vector(51.556105, -43.214453, 0), App.Vector(50.308798, -42.276678, 0), App.Vector(49.140154, -41.212393, 0), App.Vector(48.070876, -40.053779, 0), App.Vector(47.138652, -38.812343, 0), App.Vector(46.348151, -37.512439, 0), App.Vector(45.70218, -36.15046, 0), App.Vector(45.19077, -34.732991, 0), App.Vector(44.841872, -33.250575, 0), App.Vector(44.616135, -31.711665, 0), App.Vector(44.590122, -30.663869, 0), App.Vector(44.576923, -30.132212, 0)], [4, 1, 1, 1, 1, 1, 1, 1, 1, 1, 1, 1, 1, 1, 1, 1, 4], [0, 1.053102029, 2.075944431, 3.073151272, 4.055350789, 5.033113405, 6.020478099, 7.024410459, 8.052272461, 9.079885166, 10.07527673, 11.055994387, 12.023226415, 12.992069828, 13.970394897, 14.97016774, 16], False, 3, [1, 1, 1, 1, 1, 1, 1, 1, 1, 1, 1, 1, 1, 1, 1, 1, 1, 1, 1], False), False)  # 19
sketch4.addGeometry(Part.BSplineCurve([App.Vector(76.115385, -29.987981, 0), App.Vector(76.102099, -30.527616, 0), App.Vector(76.075913, -31.5913, 0), App.Vector(75.851609, -33.152529, 0), App.Vector(75.499829, -34.653307, 0), App.Vector(74.997575, -36.091126, 0), App.Vector(74.352786, -37.467506, 0), App.Vector(73.558598, -38.778822, 0), App.Vector(72.623102, -40.025507, 0), App.Vector(71.558472, -41.193901, 0), App.Vector(70.397892, -42.265308, 0), App.Vector(69.153061, -43.198898, 0), App.Vector(67.851975, -44.002248, 0), App.Vector(66.477892, -44.643251, 0), App.Vector(65.049035, -45.155581, 0), App.Vector(63.552615, -45.50489, 0), App.Vector(61.995644, -45.730207, 0), App.Vector(60.933893, -45.75608, 0), App.Vector(60.394231, -45.769231, 0)], [4, 1, 1, 1, 1, 1, 1, 1, 1, 1, 1, 1, 1, 1, 1, 1, 4], [0, 1.043624062, 2.057103931, 3.04512605, 4.022047818, 4.998200453, 5.980619268, 6.982898556, 8.009068085, 9.034988726, 10.034168286, 11.015286542, 11.987931943, 12.962482838, 13.94673481, 14.956375938, 16], False, 3, [1, 1, 1, 1, 1, 1, 1, 1, 1, 1, 1, 1, 1, 1, 1, 1, 1, 1, 1], False), False)  # 20
sketch4.addGeometry(Part.BSplineCurve([App.Vector(73.423077, -29.981971, 0), App.Vector(73.419639, -29.691267, 0), App.Vector(73.412819, -29.114601, 0), App.Vector(73.322455, -28.26208, 0), App.Vector(73.193018, -27.428481, 0), App.Vector(73.006481, -26.617077, 0), App.Vector(72.766051, -25.827661, 0), App.Vector(72.469588, -25.060975, 0), App.Vector(72.12, -24.314162, 0), App.Vector(71.718787, -23.589068, 0), App.Vector(71.267794, -22.893284, 0), App.Vector(70.774986, -22.228121, 0), App.Vector(70.231854, -21.606068, 0), App.Vector(69.653917, -21.011771, 0), App.Vector(69.026738, -20.457903, 0), App.Vector(68.353158, -19.944282, 0), App.Vector(67.641355, -19.458511, 0), App.Vector(66.887693, -19.020292, 0), App.Vector(66.109888, -18.615598, 0), App.Vector(65.311768, -18.268876, 0), App.Vector(64.502376, -17.974257, 0), App.Vector(63.68377, -17.722969, 0), App.Vector(62.849058, -17.539472, 0), App.Vector(62.003883, -17.408946, 0), App.Vector(61.149412, -17.318102, 0), App.Vector(60.574756, -17.311173, 0), App.Vector(60.286058, -17.307692, 0)], [4, 1, 1, 1, 1, 1, 1, 1, 1, 1, 1, 1, 1, 1, 1, 1, 1, 1, 1, 1, 1, 1, 1, 1, 4], [0, 1.02996197, 2.043119294, 3.035359645, 4.018872909, 4.991431989, 5.957985074, 6.929999688, 7.912076566, 8.892894881, 9.867085534, 10.843653904, 11.817741046, 12.803660682, 13.806313499, 14.818574707, 15.856120519, 16.894564902, 17.924820532, 18.937903209, 19.946497019, 20.957711757, 21.963978472, 22.977135795, 24], False, 3, [1, 1, 1, 1, 1, 1, 1, 1, 1, 1, 1, 1, 1, 1, 1, 1, 1, 1, 1, 1, 1, 1, 1, 1, 1, 1, 1], False), False)  # 21
sketch4.addGeometry(Part.BSplineCurve([App.Vector(60.286058, -42.692308, 0), App.Vector(60.582711, -42.688232, 0), App.Vector(61.171062, -42.680149, 0), App.Vector(62.046167, -42.598731, 0), App.Vector(62.905506, -42.468172, 0), App.Vector(63.747874, -42.280195, 0), App.Vector(64.572315, -42.044934, 0), App.Vector(65.382271, -41.765439, 0), App.Vector(66.169113, -41.416743, 0), App.Vector(66.942769, -41.031475, 0), App.Vector(67.683308, -40.592273, 0), App.Vector(68.390241, -40.120518, 0), App.Vector(69.04575, -39.597929, 0), App.Vector(69.666227, -39.046634, 0), App.Vector(70.245893, -38.455515, 0), App.Vector(70.780827, -37.825342, 0), App.Vector(71.269228, -37.152136, 0), App.Vector(71.718934, -36.446833, 0), App.Vector(72.120105, -35.709722, 0), App.Vector(72.46964, -34.950896, 0), App.Vector(72.766178, -34.172224, 0), App.Vector(73.005565, -33.372582, 0), App.Vector(73.193155, -32.553489, 0), App.Vector(73.322411, -31.713848, 0), App.Vector(73.412827, -30.85534, 0), App.Vector(73.419642, -30.274678, 0), App.Vector(73.423077, -29.981971, 0)], [4, 1, 1, 1, 1, 1, 1, 1, 1, 1, 1, 1, 1, 1, 1, 1, 1, 1, 1, 1, 1, 1, 1, 1, 4], [0, 1.047197238, 2.076906641, 3.100256066, 4.114471768, 5.12198147, 6.126382909, 7.136867548, 8.15857795, 9.17633901, 10.174870724, 11.156907918, 12.133735059, 13.104061851, 14.077631395, 15.04955518, 16.038496417, 17.029181396, 18.010275684, 18.986308667, 19.968651475, 20.955262928, 21.950658345, 22.966943676, 24], False, 3, [1, 1, 1, 1, 1, 1, 1, 1, 1, 1, 1, 1, 1, 1, 1, 1, 1, 1, 1, 1, 1, 1, 1, 1, 1, 1, 1], False), False)  # 22
sketch4.addGeometry(Part.BSplineCurve([App.Vector(47.269231, -30.120192, 0), App.Vector(47.280158, -30.553583, 0), App.Vector(47.301656, -31.406196, 0), App.Vector(47.489863, -32.655637, 0), App.Vector(47.779766, -33.856394, 0), App.Vector(48.207115, -35.001896, 0), App.Vector(48.741549, -36.10199, 0), App.Vector(49.401779, -37.146916, 0), App.Vector(50.184, -38.136958, 0), App.Vector(51.072545, -39.065203, 0), App.Vector(52.043882, -39.912453, 0), App.Vector(53.075305, -40.656139, 0), App.Vector(54.155765, -41.28537, 0), App.Vector(55.288078, -41.797985, 0), App.Vector(56.4662, -42.204183, 0), App.Vector(57.697722, -42.482571, 0), App.Vector(58.97444, -42.665789, 0), App.Vector(59.844703, -42.683384, 0), App.Vector(60.286058, -42.692308, 0)], [4, 1, 1, 1, 1, 1, 1, 1, 1, 1, 1, 1, 1, 1, 1, 1, 4], [0, 1.032063989, 2.030389145, 3.003944642, 3.970395727, 4.937377036, 5.913328081, 6.909231446, 7.93887556, 8.970685674, 9.976071282, 10.964166581, 11.944589148, 12.933237628, 13.927779006, 14.949070134, 16], False, 3, [1, 1, 1, 1, 1, 1, 1, 1, 1, 1, 1, 1, 1, 1, 1, 1, 1, 1, 1], False), False)  # 23
sketch4.addGeometry(Part.BSplineCurve([App.Vector(60.286058, -17.307692, 0), App.Vector(60.001361, -17.311163, 0), App.Vector(59.434689, -17.318071, 0), App.Vector(58.59225, -17.409062, 0), App.Vector(57.760891, -17.538747, 0), App.Vector(56.940439, -17.723732, 0), App.Vector(56.134328, -17.975766, 0), App.Vector(55.335043, -18.265831, 0), App.Vector(54.549874, -18.619155, 0), App.Vector(53.781413, -19.01835, 0), App.Vector(53.036426, -19.460197, 0), App.Vector(52.33346, -19.948527, 0), App.Vector(51.670695, -20.471886, 0), App.Vector(51.049753, -21.031496, 0), App.Vector(50.472457, -21.630207, 0), App.Vector(49.927445, -22.258942, 0), App.Vector(49.436563, -22.935673, 0), App.Vector(48.986687, -23.642047, 0), App.Vector(48.584105, -24.377147, 0), App.Vector(48.226116, -25.133231, 0), App.Vector(47.933282, -25.916469, 0), App.Vector(47.694462, -26.718361, 0), App.Vector(47.496463, -27.53764, 0), App.Vector(47.37103, -28.380518, 0), App.Vector(47.279038, -29.242762, 0), App.Vector(47.272525, -29.825464, 0), App.Vector(47.269231, -30.120192, 0)], [4, 1, 1, 1, 1, 1, 1, 1, 1, 1, 1, 1, 1, 1, 1, 1, 1, 1, 1, 1, 1, 1, 1, 1, 4], [0, 1.008559885, 2.007477868, 2.99961109, 3.989939068, 4.984837346, 5.991145699, 7.001802488, 8.033829008, 9.059044045, 10.069351652, 11.065060232, 12.050310815, 13.029377138, 14.011219647, 14.996725999, 15.989392538, 16.977580475, 17.965360261, 18.951710183, 19.937753436, 20.929683414, 21.935841486, 22.955955122, 24], False, 3, [1, 1, 1, 1, 1, 1, 1, 1, 1, 1, 1, 1, 1, 1, 1, 1, 1, 1, 1, 1, 1, 1, 1, 1, 1, 1, 1], False), False)  # 24
add_polygon(sketch4, [(84.961538, -15), (82.269231, -15), (82.269231, -45), (96.5, -45), (96.5, -41.923077), (84.961538, -41.923077)])  # lines 25-30
sketch4.addConstraint(Sketcher.Constraint("Block", 1))
sketch4.addConstraint(Sketcher.Constraint("Block", 2))
sketch4.addConstraint(Sketcher.Constraint("Block", 3))
sketch4.addConstraint(Sketcher.Constraint("Block", 4))
sketch4.addConstraint(Sketcher.Constraint("Block", 5))
sketch4.addConstraint(Sketcher.Constraint("Block", 6))
sketch4.addConstraint(Sketcher.Constraint("Block", 7))
sketch4.addConstraint(Sketcher.Constraint("Block", 9))
sketch4.addConstraint(Sketcher.Constraint("Block", 10))
sketch4.addConstraint(Sketcher.Constraint("Block", 11))
sketch4.addConstraint(Sketcher.Constraint("Block", 12))
sketch4.addConstraint(Sketcher.Constraint("Block", 13))
sketch4.addConstraint(Sketcher.Constraint("Block", 14))
sketch4.addConstraint(Sketcher.Constraint("Block", 15))
sketch4.addConstraint(Sketcher.Constraint("Block", 16))
sketch4.addConstraint(Sketcher.Constraint("Block", 17))
sketch4.addConstraint(Sketcher.Constraint("Block", 18))
sketch4.addConstraint(Sketcher.Constraint("Block", 19))
sketch4.addConstraint(Sketcher.Constraint("Block", 20))
sketch4.addConstraint(Sketcher.Constraint("Block", 21))
sketch4.addConstraint(Sketcher.Constraint("Block", 22))
sketch4.addConstraint(Sketcher.Constraint("Block", 23))
sketch4.addConstraint(Sketcher.Constraint("Block", 24))
sketch4.addConstraint(Sketcher.Constraint("Coincident", 0, 2, 1, 2))
sketch4.addConstraint(Sketcher.Constraint("Coincident", 7, 1, 8, 1))
sketch4.addConstraint(Sketcher.Constraint("Coincident", 8, 2, 9, 2))
sketch4.addConstraint(Sketcher.Constraint("Coincident", 16, 1, 0, 1))
sketch4.addConstraint(Sketcher.Constraint("Horizontal", 25))
sketch4.addConstraint(Sketcher.Constraint("Vertical", 26))
sketch4.addConstraint(Sketcher.Constraint("Horizontal", 27))
sketch4.addConstraint(Sketcher.Constraint("Vertical", 28))
sketch4.addConstraint(Sketcher.Constraint("Horizontal", 29))
sketch4.addConstraint(Sketcher.Constraint("Vertical", 30))
sketch4.addConstraint(Sketcher.Constraint("DistanceY", 26, 2, 26, 1, 30.0))
sketch4.addConstraint(Sketcher.Constraint("DistanceY", 25, 2, -1, 1, 15.0))
sketch4.addConstraint(Sketcher.Constraint("DistanceX", 0, 2, 25, 2, 60.0))
sketch4.addConstraint(Sketcher.Constraint("DistanceX", -1, 1, 27, 2, 96.5))
sketch4.addConstraint(Sketcher.Constraint("DistanceX", 29, 2, 29, 1, 11.538462))
sketch4.addConstraint(Sketcher.Constraint("DistanceY", 28, 1, 28, 2, 3.076923))
pocket3 = body.newObject("PartDesign::Pocket", "Pocket002")
pocket3.Profile = sketch4
pocket3.Length = 1.5
doc.recompute()

chamfer = body.newObject("PartDesign::Chamfer", "Chamfer")
chamfer.Base = (pocket3, edges_at(pocket3, [
    (111.619, -35, 0),
    (8.381, -35, 0),
    (4.189, 12.247, 0),
    (60, 20, 0),
    (4.189, 12.247, 10),
    (8.381, -35, 10),
    (60, -80, 0),
    (60, -80, 10),
    (96.756, -75.811, 0),
    (23.244, -75.811, 0),
    (96.756, -75.811, 10),
    (23.244, -75.811, 10),
    (111.619, -35, 10),
    (115.811, 12.247, 10),
    (60, 20, 10),
    (56.8, 5, 0),
    (56.8, -65, 0),
    (115.811, 12.247, 0),
]))
chamfer.Size = 0.5

doc.recompute()
